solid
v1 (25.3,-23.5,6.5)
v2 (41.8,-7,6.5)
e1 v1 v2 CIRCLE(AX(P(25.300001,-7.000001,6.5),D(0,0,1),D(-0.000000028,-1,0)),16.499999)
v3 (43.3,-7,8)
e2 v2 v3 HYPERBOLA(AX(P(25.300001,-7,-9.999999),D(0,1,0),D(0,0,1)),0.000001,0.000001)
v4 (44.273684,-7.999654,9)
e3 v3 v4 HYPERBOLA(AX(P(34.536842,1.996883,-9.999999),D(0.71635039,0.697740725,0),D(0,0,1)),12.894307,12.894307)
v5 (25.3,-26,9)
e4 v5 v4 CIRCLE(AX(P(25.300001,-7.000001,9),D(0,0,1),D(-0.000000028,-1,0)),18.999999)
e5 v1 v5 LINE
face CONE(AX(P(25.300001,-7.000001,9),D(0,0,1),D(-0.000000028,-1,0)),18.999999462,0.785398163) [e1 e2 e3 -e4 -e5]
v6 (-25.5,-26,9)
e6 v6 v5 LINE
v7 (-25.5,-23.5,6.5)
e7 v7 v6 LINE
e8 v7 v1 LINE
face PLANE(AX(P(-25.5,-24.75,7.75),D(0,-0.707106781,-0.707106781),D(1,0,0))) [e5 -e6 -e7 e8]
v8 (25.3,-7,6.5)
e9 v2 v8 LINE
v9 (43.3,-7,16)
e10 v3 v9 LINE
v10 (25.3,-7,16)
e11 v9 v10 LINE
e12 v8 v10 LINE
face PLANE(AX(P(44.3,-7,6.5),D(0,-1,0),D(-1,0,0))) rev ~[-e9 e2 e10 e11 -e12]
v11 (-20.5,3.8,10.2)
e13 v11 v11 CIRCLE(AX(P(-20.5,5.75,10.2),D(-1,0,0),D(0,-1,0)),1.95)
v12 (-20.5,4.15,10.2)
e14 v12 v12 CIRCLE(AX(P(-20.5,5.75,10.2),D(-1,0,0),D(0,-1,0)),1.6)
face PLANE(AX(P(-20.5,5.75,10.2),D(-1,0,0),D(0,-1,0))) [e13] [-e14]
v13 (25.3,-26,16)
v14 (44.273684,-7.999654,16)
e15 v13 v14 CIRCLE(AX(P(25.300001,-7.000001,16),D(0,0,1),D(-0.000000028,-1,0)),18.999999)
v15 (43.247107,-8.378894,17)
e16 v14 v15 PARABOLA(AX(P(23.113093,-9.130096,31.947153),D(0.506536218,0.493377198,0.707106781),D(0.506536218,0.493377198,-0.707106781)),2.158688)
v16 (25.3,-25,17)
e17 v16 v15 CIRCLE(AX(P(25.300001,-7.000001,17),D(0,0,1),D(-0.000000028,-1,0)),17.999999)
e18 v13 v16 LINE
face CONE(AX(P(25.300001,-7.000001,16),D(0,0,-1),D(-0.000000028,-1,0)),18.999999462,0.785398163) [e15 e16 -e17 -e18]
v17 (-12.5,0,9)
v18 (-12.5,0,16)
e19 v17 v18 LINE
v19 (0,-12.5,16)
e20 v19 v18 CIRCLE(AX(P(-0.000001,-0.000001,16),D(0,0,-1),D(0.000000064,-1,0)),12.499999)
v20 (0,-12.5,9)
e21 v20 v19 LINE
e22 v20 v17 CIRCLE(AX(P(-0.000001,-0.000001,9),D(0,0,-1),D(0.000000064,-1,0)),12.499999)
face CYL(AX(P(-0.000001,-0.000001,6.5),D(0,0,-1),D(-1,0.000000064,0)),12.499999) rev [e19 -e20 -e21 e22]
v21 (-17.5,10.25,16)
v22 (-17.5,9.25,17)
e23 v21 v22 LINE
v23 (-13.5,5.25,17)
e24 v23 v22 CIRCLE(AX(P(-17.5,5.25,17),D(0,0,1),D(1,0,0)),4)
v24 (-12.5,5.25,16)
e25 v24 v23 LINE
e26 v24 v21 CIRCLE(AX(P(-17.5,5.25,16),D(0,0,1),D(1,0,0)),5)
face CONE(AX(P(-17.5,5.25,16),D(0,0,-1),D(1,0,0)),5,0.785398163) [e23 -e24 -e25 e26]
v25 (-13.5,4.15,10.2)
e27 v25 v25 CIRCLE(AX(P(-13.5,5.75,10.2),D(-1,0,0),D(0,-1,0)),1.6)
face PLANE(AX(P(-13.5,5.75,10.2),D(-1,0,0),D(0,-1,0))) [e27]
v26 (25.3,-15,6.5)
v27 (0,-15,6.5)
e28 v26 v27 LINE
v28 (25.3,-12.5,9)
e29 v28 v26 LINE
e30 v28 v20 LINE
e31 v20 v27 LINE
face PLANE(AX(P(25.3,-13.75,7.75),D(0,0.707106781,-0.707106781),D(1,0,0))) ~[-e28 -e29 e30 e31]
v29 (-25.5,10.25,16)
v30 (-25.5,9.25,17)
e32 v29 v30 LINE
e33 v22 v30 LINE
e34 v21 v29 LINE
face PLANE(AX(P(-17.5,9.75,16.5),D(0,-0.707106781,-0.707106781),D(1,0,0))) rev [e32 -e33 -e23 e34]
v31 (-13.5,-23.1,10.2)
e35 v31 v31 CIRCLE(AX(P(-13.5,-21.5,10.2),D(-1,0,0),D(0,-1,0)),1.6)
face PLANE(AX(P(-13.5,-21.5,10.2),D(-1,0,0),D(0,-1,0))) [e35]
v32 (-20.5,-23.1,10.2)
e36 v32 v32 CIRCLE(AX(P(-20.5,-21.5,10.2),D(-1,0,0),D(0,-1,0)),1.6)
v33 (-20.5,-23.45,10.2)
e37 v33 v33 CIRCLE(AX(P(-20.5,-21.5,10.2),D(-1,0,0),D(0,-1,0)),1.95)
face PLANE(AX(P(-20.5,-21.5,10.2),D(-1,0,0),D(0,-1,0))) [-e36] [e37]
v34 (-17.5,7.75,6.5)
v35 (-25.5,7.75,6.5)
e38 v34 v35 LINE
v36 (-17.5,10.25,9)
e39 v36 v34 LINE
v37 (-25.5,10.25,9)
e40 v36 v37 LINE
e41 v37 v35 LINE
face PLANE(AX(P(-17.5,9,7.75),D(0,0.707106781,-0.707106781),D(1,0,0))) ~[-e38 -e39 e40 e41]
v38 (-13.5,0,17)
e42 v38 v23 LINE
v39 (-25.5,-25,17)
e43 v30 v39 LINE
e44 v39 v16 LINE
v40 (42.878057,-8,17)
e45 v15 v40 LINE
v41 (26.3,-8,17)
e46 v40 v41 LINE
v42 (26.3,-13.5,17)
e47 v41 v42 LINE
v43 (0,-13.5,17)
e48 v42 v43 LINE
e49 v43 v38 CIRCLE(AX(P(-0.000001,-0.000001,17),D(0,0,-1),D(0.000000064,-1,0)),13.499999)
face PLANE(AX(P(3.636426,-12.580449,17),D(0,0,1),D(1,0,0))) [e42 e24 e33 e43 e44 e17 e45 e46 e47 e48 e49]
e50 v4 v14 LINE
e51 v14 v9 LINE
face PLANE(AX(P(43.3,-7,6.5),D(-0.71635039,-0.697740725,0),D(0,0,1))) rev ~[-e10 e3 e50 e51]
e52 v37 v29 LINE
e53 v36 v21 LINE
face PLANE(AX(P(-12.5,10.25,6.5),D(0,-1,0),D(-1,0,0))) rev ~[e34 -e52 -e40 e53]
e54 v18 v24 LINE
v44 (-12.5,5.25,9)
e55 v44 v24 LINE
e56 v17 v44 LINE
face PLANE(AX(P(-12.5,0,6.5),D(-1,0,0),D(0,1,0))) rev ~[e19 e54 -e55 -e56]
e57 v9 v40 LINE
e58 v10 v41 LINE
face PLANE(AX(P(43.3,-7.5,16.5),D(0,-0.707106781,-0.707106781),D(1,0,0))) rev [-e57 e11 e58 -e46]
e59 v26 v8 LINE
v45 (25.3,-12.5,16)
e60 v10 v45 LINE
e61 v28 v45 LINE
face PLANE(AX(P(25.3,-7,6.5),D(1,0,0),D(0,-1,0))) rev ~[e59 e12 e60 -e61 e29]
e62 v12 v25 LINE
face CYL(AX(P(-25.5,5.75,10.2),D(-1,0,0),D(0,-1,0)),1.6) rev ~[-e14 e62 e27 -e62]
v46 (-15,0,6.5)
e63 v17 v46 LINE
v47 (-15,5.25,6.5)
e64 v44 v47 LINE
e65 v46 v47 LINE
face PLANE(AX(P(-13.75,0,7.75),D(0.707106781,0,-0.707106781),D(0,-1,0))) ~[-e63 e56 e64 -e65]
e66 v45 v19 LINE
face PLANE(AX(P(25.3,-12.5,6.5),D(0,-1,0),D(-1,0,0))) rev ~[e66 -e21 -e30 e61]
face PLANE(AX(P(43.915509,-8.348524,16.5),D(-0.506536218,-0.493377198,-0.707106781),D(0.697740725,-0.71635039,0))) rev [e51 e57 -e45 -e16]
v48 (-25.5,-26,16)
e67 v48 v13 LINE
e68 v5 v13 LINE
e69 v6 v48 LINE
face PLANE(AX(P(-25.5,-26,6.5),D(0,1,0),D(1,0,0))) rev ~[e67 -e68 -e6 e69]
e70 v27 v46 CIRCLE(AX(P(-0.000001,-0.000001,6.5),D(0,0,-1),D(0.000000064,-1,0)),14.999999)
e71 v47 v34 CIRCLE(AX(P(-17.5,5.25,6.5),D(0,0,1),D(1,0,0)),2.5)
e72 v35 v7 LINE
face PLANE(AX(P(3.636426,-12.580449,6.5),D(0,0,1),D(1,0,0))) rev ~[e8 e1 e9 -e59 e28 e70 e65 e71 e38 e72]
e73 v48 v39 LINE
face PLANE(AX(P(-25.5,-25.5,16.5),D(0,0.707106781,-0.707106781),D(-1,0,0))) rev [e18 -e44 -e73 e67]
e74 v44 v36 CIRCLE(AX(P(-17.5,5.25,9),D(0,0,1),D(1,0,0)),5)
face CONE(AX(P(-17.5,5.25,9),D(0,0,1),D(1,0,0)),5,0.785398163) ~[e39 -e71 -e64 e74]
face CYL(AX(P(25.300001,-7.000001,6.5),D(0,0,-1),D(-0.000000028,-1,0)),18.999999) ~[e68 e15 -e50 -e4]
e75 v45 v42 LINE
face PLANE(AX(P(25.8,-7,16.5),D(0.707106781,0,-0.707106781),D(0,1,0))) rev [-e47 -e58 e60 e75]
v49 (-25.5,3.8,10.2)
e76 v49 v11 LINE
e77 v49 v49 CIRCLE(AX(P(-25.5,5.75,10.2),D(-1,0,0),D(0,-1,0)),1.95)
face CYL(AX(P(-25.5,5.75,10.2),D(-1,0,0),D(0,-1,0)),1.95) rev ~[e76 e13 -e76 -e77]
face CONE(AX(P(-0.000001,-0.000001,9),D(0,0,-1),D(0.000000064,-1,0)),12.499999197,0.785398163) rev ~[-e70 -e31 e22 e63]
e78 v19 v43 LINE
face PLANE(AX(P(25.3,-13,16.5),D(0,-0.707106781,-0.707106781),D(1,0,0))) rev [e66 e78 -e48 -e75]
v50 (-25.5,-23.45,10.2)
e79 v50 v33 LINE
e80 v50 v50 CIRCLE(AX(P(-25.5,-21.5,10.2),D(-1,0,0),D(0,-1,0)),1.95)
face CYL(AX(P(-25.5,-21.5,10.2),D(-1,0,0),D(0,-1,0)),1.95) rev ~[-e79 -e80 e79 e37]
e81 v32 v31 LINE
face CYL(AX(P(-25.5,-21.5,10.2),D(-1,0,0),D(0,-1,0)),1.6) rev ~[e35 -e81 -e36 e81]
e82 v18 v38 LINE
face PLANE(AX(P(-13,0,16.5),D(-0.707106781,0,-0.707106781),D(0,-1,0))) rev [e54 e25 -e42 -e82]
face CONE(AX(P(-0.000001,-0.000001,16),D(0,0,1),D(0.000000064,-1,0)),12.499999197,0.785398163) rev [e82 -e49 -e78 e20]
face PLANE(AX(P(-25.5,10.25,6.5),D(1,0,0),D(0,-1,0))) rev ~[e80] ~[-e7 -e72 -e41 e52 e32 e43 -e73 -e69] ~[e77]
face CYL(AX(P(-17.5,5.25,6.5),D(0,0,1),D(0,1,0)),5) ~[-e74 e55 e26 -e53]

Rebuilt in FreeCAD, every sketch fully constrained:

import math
import FreeCAD as App
import Part
import Sketcher

V = App.Vector
Q = App.Units.Quantity


def edges_at(feature, points):
    """Names of the edges that pass closest to the given points."""
    edges = feature.Shape.Edges
    near = lambda p: min(range(len(edges)), key=lambda i: edges[i].distToShape(Part.Vertex(*p))[0])
    return sorted({f"Edge{near(p) + 1}" for p in points})

doc = App.newDocument("Part")
params = doc.addObject("Spreadsheet::Sheet", "Params")
for row, (alias, value) in enumerate([
    ("sketch1_radius", "18.999999 mm"),
    ("sketch1_radius2", "12.499999 mm"),
    ("sketch1_width", "13 mm"),
    ("sketch1_width2", "50.8 mm"),
    ("sketch1_height", "5.5 mm"),
    ("pad1_length", "10.5 mm"),
    ("chamfer_size", "1 mm"),
    ("sketch2_diameter", "3.2 mm"),
    ("pocket1_length", "12 mm"),
    ("sketch3_diameter", "3.9 mm"),
    ("pocket2_length", "5 mm"),
    ("fillet_radius", "5 mm"),
    ("chamfer2_size", "1 mm"),
    ("chamfer3_size", "2.5 mm"),
], start=1):
    params.set(f"A{row}", alias)
    params.set(f"B{row}", "=" + value)
    params.setAlias(f"B{row}", alias)

body = doc.addObject("PartDesign::Body", "Body")

# Sketch on XY plane
sketch1 = body.newObject("Sketcher::SketchObject", "Sketch")
sketch1.AttachmentSupport = (doc.getObject("XY_Plane"), [""])
sketch1.MapMode = "FlatFace"
sketch1.addGeometry([
    Part.LineSegment(V(-12, 0, 0), V(-12, 10, 0)),  # 0
    Part.LineSegment(V(-12, 10, 0), V(-26, 10, 0)),  # 1
    Part.LineSegment(V(-26, 10, 0), V(-26, -26, 0)),  # 2
    Part.LineSegment(V(-26, -26, 0), V(25, -26, 0)),  # 3
    Part.ArcOfCircle(Part.Circle(V(25, -7, 0), V(0, 0, 1), 19), math.radians(-90), math.radians(0)),  # 4
    Part.LineSegment(V(44, -7, 0), V(25, -7, 0)),  # 5
    Part.LineSegment(V(25, -7, 0), V(25, -12, 0)),  # 6
    Part.LineSegment(V(25, -12, 0), V(0, -12, 0)),  # 7
    Part.ArcOfCircle(Part.Circle(V(0, 0, 0), V(0, 0, 1), 12), math.radians(180), math.radians(270)),  # 8
], False)
sketch1.addConstraint([
    Sketcher.Constraint("Coincident", 0, 2, 1, 1),
    Sketcher.Constraint("Coincident", 1, 2, 2, 1),
    Sketcher.Constraint("Coincident", 2, 2, 3, 1),
    Sketcher.Constraint("Tangent", 3, 2, 4, 1),
    Sketcher.Constraint("Coincident", 4, 2, 5, 1),
    Sketcher.Constraint("Coincident", 5, 2, 6, 1),
    Sketcher.Constraint("Coincident", 6, 2, 7, 1),
    Sketcher.Constraint("Tangent", 7, 2, 8, 2),
    Sketcher.Constraint("Tangent", 8, 1, 0, 1),
    Sketcher.Constraint("Vertical", 0),
    Sketcher.Constraint("Horizontal", 1),
    Sketcher.Constraint("Vertical", 2),
    Sketcher.Constraint("Horizontal", 3),
    Sketcher.Constraint("Horizontal", 5),
    Sketcher.Constraint("Vertical", 6),
    Sketcher.Constraint("Horizontal", 7),
    Sketcher.Constraint("Coincident", 8, 3, -1, 1),
    Sketcher.Constraint("Coincident", 5, 2, 4, 3),
    Sketcher.Constraint("Radius", 4, Q("18.999999 mm")),
    Sketcher.Constraint("Radius", 8, Q("12.499999 mm")),
    Sketcher.Constraint("DistanceX", 1, 2, 1, 1, Q("13 mm")),
    Sketcher.Constraint("DistanceX", 3, 1, 3, 2, Q("50.8 mm")),
    Sketcher.Constraint("DistanceY", 6, 2, 6, 1, Q("5.5 mm")),
    Sketcher.Constraint("DistanceY", 0, 1, 0, 2, Q("10.25 mm")),
])
sketch1.setExpression("Constraints[18]", "Params.sketch1_radius")
sketch1.setExpression("Constraints[19]", "Params.sketch1_radius2")
sketch1.setExpression("Constraints[20]", "Params.sketch1_width")
sketch1.setExpression("Constraints[21]", "Params.sketch1_width2")
sketch1.setExpression("Constraints[22]", "Params.sketch1_height")
pad1 = body.newObject("PartDesign::Pad", "Pad")
pad1.Profile = sketch1
pad1.setExpression("Length", "Params.pad1_length")
doc.recompute()

chamfer = body.newObject("PartDesign::Chamfer", "Chamfer")
chamfer.Base = (pad1, edges_at(pad1, [(44.3, -7, 5.25)]))
chamfer.setExpression("Size", "Params.chamfer_size")

# Sketch on YZ plane
sketch2 = body.newObject("Sketcher::SketchObject", "Sketch001")
sketch2.AttachmentSupport = (doc.getObject("YZ_Plane"), [""])
sketch2.MapMode = "FlatFace"
sketch2.AttachmentOffset = App.Placement(V(0, 0, -25.5), App.Rotation())
sketch2.addGeometry([
    Part.Circle(V(5.8, 3.7, 0), V(0, 0, 1), 1.6),
    Part.Circle(V(-21.5, 3.7, 0), V(0, 0, 1), 1.6),
], False)
sketch2.addConstraint([
    Sketcher.Constraint("Equal", 0, 1),
    Sketcher.Constraint("Horizontal", 0, 3, 1, 3),
    Sketcher.Constraint("Diameter", 0, Q("3.2 mm")),
    Sketcher.Constraint("DistanceY", -1, 1, 0, 3, Q("3.7 mm")),
    Sketcher.Constraint("DistanceX", 1, 3, -1, 1, Q("21.5 mm")),
    Sketcher.Constraint("DistanceX", -1, 1, 0, 3, Q("5.75 mm")),
])
sketch2.setExpression("Constraints[2]", "Params.sketch2_diameter")
pocket1 = body.newObject("PartDesign::Pocket", "Pocket")
pocket1.Profile = sketch2
pocket1.setExpression("Length", "Params.pocket1_length")
pocket1.Reversed = True

# Sketch on YZ plane
sketch3 = body.newObject("Sketcher::SketchObject", "Sketch002")
sketch3.AttachmentSupport = (doc.getObject("YZ_Plane"), [""])
sketch3.MapMode = "FlatFace"
sketch3.AttachmentOffset = App.Placement(V(0, 0, -25.5), App.Rotation())
sketch3.addGeometry([
    Part.Circle(V(5.8, 3.7, 0), V(0, 0, 1), 1.9),
    Part.Circle(V(-21.5, 3.7, 0), V(0, 0, 1), 1.9),
], False)
sketch3.addConstraint([
    Sketcher.Constraint("Equal", 0, 1),
    Sketcher.Constraint("Horizontal", 0, 3, 1, 3),
    Sketcher.Constraint("Diameter", 0, Q("3.9 mm")),
    Sketcher.Constraint("DistanceY", -1, 1, 0, 3, Q("3.7 mm")),
    Sketcher.Constraint("DistanceX", 1, 3, -1, 1, Q("21.5 mm")),
    Sketcher.Constraint("DistanceX", -1, 1, 0, 3, Q("5.75 mm")),
])
sketch3.setExpression("Constraints[2]", "Params.sketch3_diameter")
pocket2 = body.newObject("PartDesign::Pocket", "Pocket001")
pocket2.Profile = sketch3
pocket2.setExpression("Length", "Params.pocket2_length")
pocket2.Reversed = True
doc.recompute()

fillet = body.newObject("PartDesign::Fillet", "Fillet")
fillet.Base = (pocket2, edges_at(pocket2, [(-12.5, 10.25, 5.25)]))
fillet.setExpression("Radius", "Params.fillet_radius")
doc.recompute()

chamfer2 = body.newObject("PartDesign::Chamfer", "Chamfer001")
chamfer2.Base = (fillet, edges_at(fillet, [
    (-21.5, 10.25, 10.5),
    (-0.1, -26, 10.5),
    (-13.964, 8.786, 10.5),
    (-12.5, 2.625, 10.5),
    (-8.839, -8.839, 10.5),
    (38.377, -20.784, 10.5),
    (43.787, -7.5, 10.5),
    (34.3, -7, 10.5),
    (25.3, -9.75, 10.5),
    (12.65, -12.5, 10.5),
]))
chamfer2.setExpression("Size", "Params.chamfer2_size")
doc.recompute()

chamfer3 = body.newObject("PartDesign::Chamfer", "Chamfer002")
chamfer3.Base = (chamfer2, edges_at(chamfer2, [(-21.5, 10.25, 0), (-0.1, -26, 0)]))
chamfer3.setExpression("Size", "Params.chamfer3_size")
body2 = doc.addObject("PartDesign::Body", "Body001")
doc.recompute()

body.Placement = App.Placement(V(0, 0, 6.5), App.Rotation(V(0, 0, 1), 0))
boolean = body2.newObject("PartDesign::Boolean", "Boolean")
boolean.Type = "Fuse"
boolean.addObjects([body])

doc.recompute()
